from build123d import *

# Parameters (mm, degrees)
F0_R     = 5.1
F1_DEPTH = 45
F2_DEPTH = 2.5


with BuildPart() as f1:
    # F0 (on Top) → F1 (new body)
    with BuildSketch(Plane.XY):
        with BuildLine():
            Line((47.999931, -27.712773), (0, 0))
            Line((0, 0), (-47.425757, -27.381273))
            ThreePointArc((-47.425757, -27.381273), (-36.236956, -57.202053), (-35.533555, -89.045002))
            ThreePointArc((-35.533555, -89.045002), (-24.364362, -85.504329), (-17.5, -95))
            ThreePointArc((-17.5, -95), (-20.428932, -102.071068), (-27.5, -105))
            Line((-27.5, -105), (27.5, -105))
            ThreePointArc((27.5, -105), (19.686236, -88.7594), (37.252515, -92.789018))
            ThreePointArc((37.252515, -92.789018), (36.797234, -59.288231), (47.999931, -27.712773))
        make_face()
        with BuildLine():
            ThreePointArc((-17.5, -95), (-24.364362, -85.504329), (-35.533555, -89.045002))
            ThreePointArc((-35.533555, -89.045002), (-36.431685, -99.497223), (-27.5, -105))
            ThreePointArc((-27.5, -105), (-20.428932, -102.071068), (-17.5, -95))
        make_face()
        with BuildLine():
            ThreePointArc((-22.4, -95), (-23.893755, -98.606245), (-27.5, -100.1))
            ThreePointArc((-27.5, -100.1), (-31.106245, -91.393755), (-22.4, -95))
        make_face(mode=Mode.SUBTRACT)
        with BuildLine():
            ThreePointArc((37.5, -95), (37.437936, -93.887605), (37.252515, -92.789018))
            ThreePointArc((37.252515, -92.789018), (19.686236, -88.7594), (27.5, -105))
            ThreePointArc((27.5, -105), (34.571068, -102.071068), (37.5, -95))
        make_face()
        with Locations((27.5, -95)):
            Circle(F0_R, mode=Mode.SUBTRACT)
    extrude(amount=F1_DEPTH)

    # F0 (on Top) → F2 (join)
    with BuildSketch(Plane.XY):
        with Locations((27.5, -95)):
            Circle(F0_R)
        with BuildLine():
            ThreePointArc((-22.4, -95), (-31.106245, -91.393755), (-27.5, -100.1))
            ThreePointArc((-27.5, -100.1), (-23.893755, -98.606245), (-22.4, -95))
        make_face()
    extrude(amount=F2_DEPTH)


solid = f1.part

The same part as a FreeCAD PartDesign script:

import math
import FreeCAD as App
import Part
import Sketcher
from FreeCAD import Vector
Q = App.Units.Quantity

doc = App.newDocument("Part")
params = doc.addObject("Spreadsheet::Sheet", "Params")
for row, (alias, value) in enumerate([
    ("sketch1_radius", "10 mm"),
    ("sketch1_diameter", "10.2 mm"),
    ("sketch1_width", "55 mm"),
    ("pad1_length", "45 mm"),
    ("sketch2_diameter", "10.2 mm"),
    ("pad2_length", "2.5 mm"),
], start=1):
    params.set(f"A{row}", alias)
    params.set(f"B{row}", "=" + value)
    params.setAlias(f"B{row}", alias)

body = doc.addObject("PartDesign::Body", "Body")

sketch1 = doc.addObject("Sketcher::SketchObject", "Sketch")
body.addObject(sketch1)
sketch1.AttachmentSupport = (doc.XY_Plane, [""])
sketch1.MapMode = "FlatFace"
sketch1.addGeometry(Part.LineSegment(Vector(47.999931, -27.712773, 0), Vector(0, 0, 0)), False)
sketch1.addGeometry(Part.LineSegment(Vector(0, 0, 0), Vector(-47.425757, -27.381273, 0)), False)
sketch1.addGeometry(Part.ArcOfCircle(Part.Circle(Vector(-129.518068, -75.191848, 0), Vector(0, 0, 1), 94.999993), math.radians(-8.384922), math.radians(30.216528)), False)
sketch1.addGeometry(Part.ArcOfCircle(Part.Circle(Vector(-27.500001, -95, 0), Vector(0, 0, 1), 10), math.radians(143.451728), math.radians(270.000004)), False)
sketch1.addGeometry(Part.LineSegment(Vector(-27.5, -105, 0), Vector(27.5, -105, 0)), False)
sketch1.addGeometry(Part.ArcOfCircle(Part.Circle(Vector(27.500001, -95.000001, 0), Vector(0, 0, 1), 9.999999), math.radians(-90.000004), math.radians(0.000004)), False)
sketch1.addGeometry(Part.ArcOfCircle(Part.Circle(Vector(27.499996, -95.000003, 0), Vector(0, 0, 1), 10.000004), math.radians(0.000015), math.radians(12.773554)), False)
sketch1.addGeometry(Part.ArcOfCircle(Part.Circle(Vector(130.527598, -74.767908, 0), Vector(0, 0, 1), 95.000008), math.radians(150.309333), math.radians(190.935037)), False)
sketch1.addGeometry(Part.ArcOfCircle(Part.Circle(Vector(-27.5, -95, 0), Vector(0, 0, 1), 5.1), math.radians(-0.000003), math.radians(270.000003)), False)
sketch1.addGeometry(Part.ArcOfCircle(Part.Circle(Vector(-27.499999, -95.000001, 0), Vector(0, 0, 1), 5.099999), math.radians(-90.000016), math.radians(0.000016)), False)
sketch1.addGeometry(Part.Circle(Vector(27.5, -95, 0), Vector(0, 0, 1), 5.1), False)
sketch1.addConstraint(Sketcher.Constraint("Coincident", 0, 2, 1, 1))
sketch1.addConstraint(Sketcher.Constraint("Coincident", 1, 2, 2, 2))
sketch1.addConstraint(Sketcher.Constraint("Coincident", 2, 1, 3, 1))
sketch1.addConstraint(Sketcher.Constraint("Tangent", 3, 2, 4, 1))
sketch1.addConstraint(Sketcher.Constraint("Tangent", 4, 2, 5, 1))
sketch1.addConstraint(Sketcher.Constraint("Tangent", 5, 2, 6, 1))
sketch1.addConstraint(Sketcher.Constraint("Coincident", 6, 2, 7, 2))
sketch1.addConstraint(Sketcher.Constraint("Coincident", 7, 1, 0, 1))
sketch1.addConstraint(Sketcher.Constraint("Tangent", 8, 1, 9, 2))
sketch1.addConstraint(Sketcher.Constraint("Coincident", 9, 1, 8, 2))
sketch1.addConstraint(Sketcher.Constraint("Horizontal", 4))
sketch1.addConstraint(Sketcher.Constraint("Coincident", 0, 2, -1, 1))
sketch1.addConstraint(Sketcher.Constraint("Coincident", 8, 3, 3, 3))
sketch1.addConstraint(Sketcher.Constraint("Coincident", 10, 3, 5, 3))
sketch1.addConstraint(Sketcher.Constraint("Equal", 3, 5))
sketch1.addConstraint(Sketcher.Constraint("Equal", 9, 10))
sketch1.addConstraint(Sketcher.Constraint("Horizontal", 10, 3, 5, 2))
sketch1.addConstraint(Sketcher.Constraint("Horizontal", 5, 2, 8, 1))
sketch1.addConstraint(Sketcher.Constraint("Vertical", 3, 2, 9, 1))
sketch1.addConstraint(Sketcher.Constraint("Radius", 3, Q("10 mm")))
sketch1.addConstraint(Sketcher.Constraint("Diameter", 10, Q("10.2 mm")))
sketch1.addConstraint(Sketcher.Constraint("DistanceX", 4, 1, 4, 2, Q("55 mm")))
sketch1.addConstraint(Sketcher.Constraint("Angle", 0, Q("150 deg")))
sketch1.addConstraint(Sketcher.Constraint("Angle", 1, Q("-150.000001 deg")))
sketch1.addConstraint(Sketcher.Constraint("DistanceY", 3, 3, -1, 1, Q("95 mm")))
sketch1.addConstraint(Sketcher.Constraint("DistanceX", 3, 3, -1, 1, Q("27.500001 mm")))
sketch1.addConstraint(Sketcher.Constraint("DistanceY", 2, 1, -1, 1, Q("89.045002 mm")))
sketch1.addConstraint(Sketcher.Constraint("Radius", 2, Q("94.999993 mm")))
sketch1.addConstraint(Sketcher.Constraint("Radius", 6, Q("10.000004 mm")))
sketch1.addConstraint(Sketcher.Constraint("Radius", 7, Q("95.000008 mm")))
sketch1.addConstraint(Sketcher.Constraint("DistanceX", 6, 3, 7, 3, Q("103.027602 mm")))
sketch1.addConstraint(Sketcher.Constraint("DistanceX", 1, 2, 2, 1, Q("11.892202 mm")))
sketch1.addConstraint(Sketcher.Constraint("DistanceY", 6, 2, -1, 1, Q("92.789018 mm")))
sketch1.setExpression("Constraints[19]", "Params.sketch1_radius")
sketch1.setExpression("Constraints[20]", "Params.sketch1_diameter")
sketch1.setExpression("Constraints[21]", "Params.sketch1_width")
pad1 = doc.addObject("PartDesign::Pad", "Pad")
body.addObject(pad1)
pad1.Profile = sketch1
pad1.setExpression("Length", "Params.pad1_length")

sketch2 = doc.addObject("Sketcher::SketchObject", "Sketch001")
body.addObject(sketch2)
sketch2.AttachmentSupport = (doc.XY_Plane, [""])
sketch2.MapMode = "FlatFace"
sketch2.addGeometry(Part.Circle(Vector(27.5, -95, 0), Vector(0, 0, 1), 5.1), False)
sketch2.addGeometry(Part.ArcOfCircle(Part.Circle(Vector(-27.5, -95, 0), Vector(0, 0, 1), 5.1), math.radians(-0.000003), math.radians(270.000003)), False)
sketch2.addGeometry(Part.ArcOfCircle(Part.Circle(Vector(-27.499999, -95.000001, 0), Vector(0, 0, 1), 5.099999), math.radians(-90.000016), math.radians(0.000016)), False)
sketch2.addConstraint(Sketcher.Constraint("Tangent", 1, 1, 2, 2))
sketch2.addConstraint(Sketcher.Constraint("Coincident", 2, 1, 1, 2))
sketch2.addConstraint(Sketcher.Constraint("Equal", 0, 1))
sketch2.addConstraint(Sketcher.Constraint("Symmetric", 0, 3, 1, 3, -2))
sketch2.addConstraint(Sketcher.Constraint("Horizontal", 2, 3, 1, 1))
sketch2.addConstraint(Sketcher.Constraint("Vertical", 1, 3, 2, 1))
sketch2.addConstraint(Sketcher.Constraint("Diameter", 0, Q("10.2 mm")))
sketch2.addConstraint(Sketcher.Constraint("DistanceY", 0, 3, -1, 1, Q("95 mm")))
sketch2.addConstraint(Sketcher.Constraint("DistanceX", 1, 3, 0, 3, Q("55 mm")))
sketch2.setExpression("Constraints[6]", "Params.sketch2_diameter")
pad2 = doc.addObject("PartDesign::Pad", "Pad001")
body.addObject(pad2)
pad2.Profile = sketch2
pad2.setExpression("Length", "Params.pad2_length")

doc.recompute()
